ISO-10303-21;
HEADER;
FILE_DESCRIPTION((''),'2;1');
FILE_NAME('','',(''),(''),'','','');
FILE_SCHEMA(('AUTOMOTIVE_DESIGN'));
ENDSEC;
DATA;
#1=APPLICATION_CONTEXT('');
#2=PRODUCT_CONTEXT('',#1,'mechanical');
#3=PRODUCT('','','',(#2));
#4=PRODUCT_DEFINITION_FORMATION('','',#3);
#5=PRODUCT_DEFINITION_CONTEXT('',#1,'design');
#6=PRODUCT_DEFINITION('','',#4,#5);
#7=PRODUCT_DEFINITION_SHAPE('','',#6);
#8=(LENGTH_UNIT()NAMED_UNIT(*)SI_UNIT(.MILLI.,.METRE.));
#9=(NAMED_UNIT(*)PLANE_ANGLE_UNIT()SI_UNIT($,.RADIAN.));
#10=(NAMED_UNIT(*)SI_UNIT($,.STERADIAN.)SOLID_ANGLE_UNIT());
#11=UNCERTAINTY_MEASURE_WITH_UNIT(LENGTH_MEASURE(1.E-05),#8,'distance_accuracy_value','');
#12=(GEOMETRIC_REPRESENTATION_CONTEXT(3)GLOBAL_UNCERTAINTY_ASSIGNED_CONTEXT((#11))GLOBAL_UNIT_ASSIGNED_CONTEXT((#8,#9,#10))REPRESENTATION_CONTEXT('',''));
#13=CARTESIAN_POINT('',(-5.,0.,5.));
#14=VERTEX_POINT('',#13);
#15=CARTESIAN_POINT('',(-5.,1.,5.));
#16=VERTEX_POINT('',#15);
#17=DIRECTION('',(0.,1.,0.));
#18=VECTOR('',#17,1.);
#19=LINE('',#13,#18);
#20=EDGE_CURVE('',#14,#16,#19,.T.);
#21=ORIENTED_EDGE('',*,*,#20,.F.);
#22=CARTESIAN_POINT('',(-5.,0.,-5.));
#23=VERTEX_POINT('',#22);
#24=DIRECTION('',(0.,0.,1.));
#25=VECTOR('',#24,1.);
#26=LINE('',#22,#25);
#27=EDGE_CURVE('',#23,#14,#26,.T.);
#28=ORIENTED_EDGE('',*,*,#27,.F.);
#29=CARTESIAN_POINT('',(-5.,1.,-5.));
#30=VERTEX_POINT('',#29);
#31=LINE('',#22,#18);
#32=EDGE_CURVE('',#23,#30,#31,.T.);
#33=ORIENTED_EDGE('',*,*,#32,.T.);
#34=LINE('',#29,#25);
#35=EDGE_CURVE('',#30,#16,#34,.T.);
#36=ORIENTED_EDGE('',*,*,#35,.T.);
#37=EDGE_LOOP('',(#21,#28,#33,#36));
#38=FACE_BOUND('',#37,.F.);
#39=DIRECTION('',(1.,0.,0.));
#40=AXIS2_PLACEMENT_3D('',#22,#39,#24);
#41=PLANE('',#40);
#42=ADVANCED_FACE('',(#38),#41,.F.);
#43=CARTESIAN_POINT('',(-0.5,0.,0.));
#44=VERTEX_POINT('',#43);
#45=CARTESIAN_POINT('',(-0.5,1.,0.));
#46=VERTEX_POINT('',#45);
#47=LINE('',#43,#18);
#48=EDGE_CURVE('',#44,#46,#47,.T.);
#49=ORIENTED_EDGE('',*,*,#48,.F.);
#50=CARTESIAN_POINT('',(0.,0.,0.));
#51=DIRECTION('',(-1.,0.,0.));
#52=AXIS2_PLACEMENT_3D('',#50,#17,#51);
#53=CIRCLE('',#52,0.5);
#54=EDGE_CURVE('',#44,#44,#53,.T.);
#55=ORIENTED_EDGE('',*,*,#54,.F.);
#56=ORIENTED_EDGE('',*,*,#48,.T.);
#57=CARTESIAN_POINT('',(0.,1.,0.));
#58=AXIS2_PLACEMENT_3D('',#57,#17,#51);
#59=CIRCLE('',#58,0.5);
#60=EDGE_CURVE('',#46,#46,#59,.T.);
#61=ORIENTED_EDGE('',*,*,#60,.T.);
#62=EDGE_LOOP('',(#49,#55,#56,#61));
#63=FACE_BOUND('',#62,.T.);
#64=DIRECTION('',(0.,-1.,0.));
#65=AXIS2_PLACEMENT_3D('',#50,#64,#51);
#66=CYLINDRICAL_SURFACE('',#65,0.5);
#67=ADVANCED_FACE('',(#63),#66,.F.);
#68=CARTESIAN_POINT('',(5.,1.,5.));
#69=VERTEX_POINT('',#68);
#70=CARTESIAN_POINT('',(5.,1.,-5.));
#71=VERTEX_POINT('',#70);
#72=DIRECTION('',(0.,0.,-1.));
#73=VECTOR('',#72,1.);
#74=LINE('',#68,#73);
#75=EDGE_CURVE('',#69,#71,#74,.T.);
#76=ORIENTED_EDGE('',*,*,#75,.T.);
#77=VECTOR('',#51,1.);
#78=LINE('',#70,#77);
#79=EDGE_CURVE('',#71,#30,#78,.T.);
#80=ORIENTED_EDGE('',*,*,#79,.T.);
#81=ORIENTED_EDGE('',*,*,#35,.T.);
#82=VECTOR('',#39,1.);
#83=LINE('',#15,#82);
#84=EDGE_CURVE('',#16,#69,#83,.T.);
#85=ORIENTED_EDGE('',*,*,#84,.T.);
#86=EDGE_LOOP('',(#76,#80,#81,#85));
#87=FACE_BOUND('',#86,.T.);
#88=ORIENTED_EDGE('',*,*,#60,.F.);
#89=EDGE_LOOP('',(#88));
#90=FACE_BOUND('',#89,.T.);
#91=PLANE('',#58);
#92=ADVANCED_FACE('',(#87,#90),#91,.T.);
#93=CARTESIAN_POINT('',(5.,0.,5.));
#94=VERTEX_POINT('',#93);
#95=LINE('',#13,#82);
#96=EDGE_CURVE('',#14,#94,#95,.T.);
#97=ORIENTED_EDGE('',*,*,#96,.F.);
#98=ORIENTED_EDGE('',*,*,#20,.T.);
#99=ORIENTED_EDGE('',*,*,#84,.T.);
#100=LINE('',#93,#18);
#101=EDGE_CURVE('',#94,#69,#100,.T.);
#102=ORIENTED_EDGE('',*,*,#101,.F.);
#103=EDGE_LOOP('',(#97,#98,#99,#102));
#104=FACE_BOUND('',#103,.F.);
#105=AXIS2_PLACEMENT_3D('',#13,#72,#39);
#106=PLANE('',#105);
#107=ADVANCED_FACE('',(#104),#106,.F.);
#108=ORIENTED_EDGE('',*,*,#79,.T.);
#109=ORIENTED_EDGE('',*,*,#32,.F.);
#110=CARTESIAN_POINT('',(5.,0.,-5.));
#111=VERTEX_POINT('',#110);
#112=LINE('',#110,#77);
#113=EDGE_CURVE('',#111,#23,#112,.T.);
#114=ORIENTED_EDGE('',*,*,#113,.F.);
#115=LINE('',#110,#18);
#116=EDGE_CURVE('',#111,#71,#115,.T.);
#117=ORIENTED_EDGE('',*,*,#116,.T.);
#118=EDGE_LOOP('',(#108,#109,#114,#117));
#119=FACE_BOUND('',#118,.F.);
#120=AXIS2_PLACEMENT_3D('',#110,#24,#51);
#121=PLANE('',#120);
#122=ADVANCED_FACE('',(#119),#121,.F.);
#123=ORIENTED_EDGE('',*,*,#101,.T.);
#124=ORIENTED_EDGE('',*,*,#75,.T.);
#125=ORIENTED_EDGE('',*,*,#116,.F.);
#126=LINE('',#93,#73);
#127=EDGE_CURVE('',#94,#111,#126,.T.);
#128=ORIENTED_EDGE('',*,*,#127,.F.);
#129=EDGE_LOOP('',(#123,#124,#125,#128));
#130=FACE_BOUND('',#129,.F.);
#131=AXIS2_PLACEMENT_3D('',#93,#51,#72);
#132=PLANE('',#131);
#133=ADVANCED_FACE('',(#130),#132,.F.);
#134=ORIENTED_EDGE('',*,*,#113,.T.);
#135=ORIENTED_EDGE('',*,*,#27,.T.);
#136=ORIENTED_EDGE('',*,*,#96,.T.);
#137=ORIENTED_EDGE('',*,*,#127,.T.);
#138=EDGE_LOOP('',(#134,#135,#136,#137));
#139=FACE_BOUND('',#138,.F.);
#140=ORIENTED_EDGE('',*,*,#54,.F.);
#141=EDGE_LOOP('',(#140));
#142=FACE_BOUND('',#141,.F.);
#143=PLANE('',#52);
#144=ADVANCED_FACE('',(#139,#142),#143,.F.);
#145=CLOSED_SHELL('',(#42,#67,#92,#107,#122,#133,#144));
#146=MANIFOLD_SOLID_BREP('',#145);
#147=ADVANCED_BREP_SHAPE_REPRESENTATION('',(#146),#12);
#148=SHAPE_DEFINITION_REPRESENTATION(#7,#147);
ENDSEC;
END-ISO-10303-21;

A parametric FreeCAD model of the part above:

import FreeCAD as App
import Part
import Sketcher
from FreeCAD import Vector

doc = App.newDocument("Part")
body = doc.addObject("PartDesign::Body", "Body")

sketch1 = body.newObject("Sketcher::SketchObject", "Sketch")
sketch1.AttachmentSupport = (doc.getObject("XZ_Plane"), [""])
sketch1.MapMode = "FlatFace"
sketch1.addGeometry([
    Part.LineSegment(Vector(5, 5, 0), Vector(5, -5, 0)),
    Part.LineSegment(Vector(5, -5, 0), Vector(-5, -5, 0)),
    Part.LineSegment(Vector(-5, -5, 0), Vector(-5, 5, 0)),
    Part.LineSegment(Vector(-5, 5, 0), Vector(5, 5, 0)),
    Part.Circle(Vector(0, 0, 0), Vector(0, 0, 1), 0.5),
], False)
sketch1.addConstraint([
    Sketcher.Constraint("Coincident", 0, 2, 1, 1),
    Sketcher.Constraint("Coincident", 1, 2, 2, 1),
    Sketcher.Constraint("Coincident", 2, 2, 3, 1),
    Sketcher.Constraint("Coincident", 3, 2, 0, 1),
    Sketcher.Constraint("Vertical", 0),
    Sketcher.Constraint("Horizontal", 1),
    Sketcher.Constraint("Vertical", 2),
    Sketcher.Constraint("Horizontal", 3),
    Sketcher.Constraint("Coincident", 4, 3, -1, 1),
    Sketcher.Constraint("Symmetric", 0, 2, 2, 2, -1, 1),
    Sketcher.Constraint("Equal", 3, 0),
    Sketcher.Constraint("Diameter", 4, 1.0),
    Sketcher.Constraint("DistanceX", 1, 2, 1, 1, 10.0),
])
pad1 = body.newObject("PartDesign::Pad", "Pad")
pad1.Profile = sketch1
pad1.Length = 1
pad1.Reversed = True

doc.recompute()
